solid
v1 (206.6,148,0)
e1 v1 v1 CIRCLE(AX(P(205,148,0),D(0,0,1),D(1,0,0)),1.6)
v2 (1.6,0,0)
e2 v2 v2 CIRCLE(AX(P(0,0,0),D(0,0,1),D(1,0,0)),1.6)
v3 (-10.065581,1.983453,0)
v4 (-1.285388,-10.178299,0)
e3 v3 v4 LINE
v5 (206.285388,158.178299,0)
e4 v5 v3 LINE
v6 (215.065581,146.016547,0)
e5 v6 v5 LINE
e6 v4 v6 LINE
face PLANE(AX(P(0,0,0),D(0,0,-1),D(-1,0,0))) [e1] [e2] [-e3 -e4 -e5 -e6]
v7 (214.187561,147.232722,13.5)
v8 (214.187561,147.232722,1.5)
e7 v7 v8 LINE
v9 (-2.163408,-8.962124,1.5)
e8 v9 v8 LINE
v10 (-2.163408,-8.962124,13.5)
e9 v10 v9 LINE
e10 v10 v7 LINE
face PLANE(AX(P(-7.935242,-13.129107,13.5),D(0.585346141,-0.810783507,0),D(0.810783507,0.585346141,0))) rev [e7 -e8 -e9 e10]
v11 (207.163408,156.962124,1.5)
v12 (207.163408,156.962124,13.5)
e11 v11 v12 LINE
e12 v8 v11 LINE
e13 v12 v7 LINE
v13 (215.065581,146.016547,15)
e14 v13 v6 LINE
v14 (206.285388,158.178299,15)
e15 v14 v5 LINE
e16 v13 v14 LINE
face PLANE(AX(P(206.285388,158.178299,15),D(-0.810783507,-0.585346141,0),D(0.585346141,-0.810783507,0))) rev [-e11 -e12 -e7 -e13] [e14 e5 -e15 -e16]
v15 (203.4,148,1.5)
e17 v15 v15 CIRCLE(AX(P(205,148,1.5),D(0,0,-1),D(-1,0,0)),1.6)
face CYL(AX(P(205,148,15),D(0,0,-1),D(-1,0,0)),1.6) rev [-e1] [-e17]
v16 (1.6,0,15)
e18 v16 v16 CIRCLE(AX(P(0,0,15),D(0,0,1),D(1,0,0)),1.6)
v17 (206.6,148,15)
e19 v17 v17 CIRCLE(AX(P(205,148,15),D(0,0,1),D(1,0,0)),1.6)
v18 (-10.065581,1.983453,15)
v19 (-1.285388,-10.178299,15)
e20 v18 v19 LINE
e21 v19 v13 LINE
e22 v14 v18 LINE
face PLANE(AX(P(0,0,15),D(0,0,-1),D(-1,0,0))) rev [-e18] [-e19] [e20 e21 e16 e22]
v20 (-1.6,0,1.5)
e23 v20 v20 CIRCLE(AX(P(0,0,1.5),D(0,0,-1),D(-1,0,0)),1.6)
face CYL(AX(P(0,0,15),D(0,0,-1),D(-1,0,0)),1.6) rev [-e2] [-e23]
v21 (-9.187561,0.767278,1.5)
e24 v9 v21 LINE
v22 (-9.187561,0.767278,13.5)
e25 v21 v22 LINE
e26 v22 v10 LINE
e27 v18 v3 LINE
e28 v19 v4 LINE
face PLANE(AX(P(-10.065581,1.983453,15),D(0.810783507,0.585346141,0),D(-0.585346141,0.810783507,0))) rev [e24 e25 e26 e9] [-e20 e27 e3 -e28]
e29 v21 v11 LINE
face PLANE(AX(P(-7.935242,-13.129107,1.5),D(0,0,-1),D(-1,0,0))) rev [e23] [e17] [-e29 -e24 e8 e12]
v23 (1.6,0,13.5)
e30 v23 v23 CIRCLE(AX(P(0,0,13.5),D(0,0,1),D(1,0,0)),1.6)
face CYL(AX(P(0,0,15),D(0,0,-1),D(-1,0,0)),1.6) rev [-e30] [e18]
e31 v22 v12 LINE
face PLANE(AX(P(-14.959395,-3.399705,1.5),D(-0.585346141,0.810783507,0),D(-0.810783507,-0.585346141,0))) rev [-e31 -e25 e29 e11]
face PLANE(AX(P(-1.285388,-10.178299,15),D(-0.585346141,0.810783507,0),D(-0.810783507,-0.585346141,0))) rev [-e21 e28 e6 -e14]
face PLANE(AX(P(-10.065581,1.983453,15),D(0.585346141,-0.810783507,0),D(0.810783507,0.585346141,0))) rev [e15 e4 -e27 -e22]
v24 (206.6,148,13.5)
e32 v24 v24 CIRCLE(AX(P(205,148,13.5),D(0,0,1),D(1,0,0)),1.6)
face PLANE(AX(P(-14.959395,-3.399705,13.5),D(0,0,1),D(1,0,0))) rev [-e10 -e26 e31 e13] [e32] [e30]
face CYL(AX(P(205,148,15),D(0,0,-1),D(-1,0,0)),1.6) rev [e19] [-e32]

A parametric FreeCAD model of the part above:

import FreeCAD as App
import Part
import Sketcher
from FreeCAD import Vector


def add_polygon(sketch, points):
    """Adds a closed chain of lines whose ends are joined by coincident constraints."""
    first, n = sketch.GeometryCount, len(points)
    for a, b in zip(points, points[1:] + points[:1]):
        sketch.addGeometry(Part.LineSegment(App.Vector(*a, 0), App.Vector(*b, 0)), False)
    for i in range(n):
        sketch.addConstraint(Sketcher.Constraint("Coincident", first + i, 2, first + (i + 1) % n, 1))

doc = App.newDocument("Part")
body = doc.addObject("PartDesign::Body", "Body")

sketch1 = body.newObject("Sketcher::SketchObject", "Sketch")
sketch1.AttachmentSupport = (doc.getObject("XY_Plane"), [""])
sketch1.MapMode = "FlatFace"
add_polygon(sketch1, [(-10.1, 2), (-1.3, -10.2), (215.1, 146), (206.3, 158.2)])
sketch1.addGeometry(Part.Circle(Vector(0, 0, 0), Vector(0, 0, 1), 1.6), False)
sketch1.addGeometry(Part.Circle(Vector(205, 148, 0), Vector(0, 0, 1), 1.6), False)
sketch1.addConstraint(Sketcher.Constraint("Coincident", 4, 3, -1, 1))
sketch1.addConstraint(Sketcher.Constraint("Equal", 4, 5))
sketch1.addConstraint(Sketcher.Constraint("Perpendicular", 0, 1))
sketch1.addConstraint(Sketcher.Constraint("Perpendicular", 1, 2))
sketch1.addConstraint(Sketcher.Constraint("Perpendicular", 2, 3))
sketch1.addConstraint(Sketcher.Constraint("Diameter", 4, 3.2))
sketch1.addConstraint(Sketcher.Constraint("Distance", 0, 15.0))
sketch1.addConstraint(Sketcher.Constraint("DistanceX", -1, 1, 5, 3, 205.0))
sketch1.addConstraint(Sketcher.Constraint("DistanceY", -1, 1, 5, 3, 148.0))
sketch1.addConstraint(Sketcher.Constraint("DistanceY", 0, 2, -1, 1, 10.178299))
sketch1.addConstraint(Sketcher.Constraint("DistanceY", -1, 1, 2, 2, 158.178299))
sketch1.addConstraint(Sketcher.Constraint("DistanceX", 0, 2, -1, 1, 1.285388))
sketch1.addConstraint(Sketcher.Constraint("DistanceX", -1, 1, 1, 2, 215.065581))
pad1 = body.newObject("PartDesign::Pad", "Pad")
pad1.Profile = sketch1
pad1.Length = 15

sketch2 = body.newObject("Sketcher::SketchObject", "Sketch001")
sketch2.Placement = App.Placement(Vector(210.675485, 152.097423, 0), App.Rotation(Vector(0, 0, -1), Vector(-0.585346141, 0.810783507, 0), Vector(0.810783507, 0.585346141, 0), "ZXY"))
add_polygon(sketch2, [(-14, 6), (-14, -6), (-2, -6), (-2, 6)])
sketch2.addConstraint(Sketcher.Constraint("Vertical", 0))
sketch2.addConstraint(Sketcher.Constraint("Horizontal", 1))
sketch2.addConstraint(Sketcher.Constraint("Vertical", 2))
sketch2.addConstraint(Sketcher.Constraint("Horizontal", 3))
sketch2.addConstraint(Sketcher.Constraint("Equal", 3, 0))
sketch2.addConstraint(Sketcher.Constraint("DistanceX", 1, 1, 1, 2, 12.0))
sketch2.addConstraint(Sketcher.Constraint("DistanceY", 0, 2, -1, 1, 6.0))
sketch2.addConstraint(Sketcher.Constraint("DistanceX", 0, 2, -1, 1, 13.5))
pocket1 = body.newObject("PartDesign::Pocket", "Pocket")
pocket1.Profile = sketch2
pocket1.Type = "ThroughAll"

doc.recompute()
